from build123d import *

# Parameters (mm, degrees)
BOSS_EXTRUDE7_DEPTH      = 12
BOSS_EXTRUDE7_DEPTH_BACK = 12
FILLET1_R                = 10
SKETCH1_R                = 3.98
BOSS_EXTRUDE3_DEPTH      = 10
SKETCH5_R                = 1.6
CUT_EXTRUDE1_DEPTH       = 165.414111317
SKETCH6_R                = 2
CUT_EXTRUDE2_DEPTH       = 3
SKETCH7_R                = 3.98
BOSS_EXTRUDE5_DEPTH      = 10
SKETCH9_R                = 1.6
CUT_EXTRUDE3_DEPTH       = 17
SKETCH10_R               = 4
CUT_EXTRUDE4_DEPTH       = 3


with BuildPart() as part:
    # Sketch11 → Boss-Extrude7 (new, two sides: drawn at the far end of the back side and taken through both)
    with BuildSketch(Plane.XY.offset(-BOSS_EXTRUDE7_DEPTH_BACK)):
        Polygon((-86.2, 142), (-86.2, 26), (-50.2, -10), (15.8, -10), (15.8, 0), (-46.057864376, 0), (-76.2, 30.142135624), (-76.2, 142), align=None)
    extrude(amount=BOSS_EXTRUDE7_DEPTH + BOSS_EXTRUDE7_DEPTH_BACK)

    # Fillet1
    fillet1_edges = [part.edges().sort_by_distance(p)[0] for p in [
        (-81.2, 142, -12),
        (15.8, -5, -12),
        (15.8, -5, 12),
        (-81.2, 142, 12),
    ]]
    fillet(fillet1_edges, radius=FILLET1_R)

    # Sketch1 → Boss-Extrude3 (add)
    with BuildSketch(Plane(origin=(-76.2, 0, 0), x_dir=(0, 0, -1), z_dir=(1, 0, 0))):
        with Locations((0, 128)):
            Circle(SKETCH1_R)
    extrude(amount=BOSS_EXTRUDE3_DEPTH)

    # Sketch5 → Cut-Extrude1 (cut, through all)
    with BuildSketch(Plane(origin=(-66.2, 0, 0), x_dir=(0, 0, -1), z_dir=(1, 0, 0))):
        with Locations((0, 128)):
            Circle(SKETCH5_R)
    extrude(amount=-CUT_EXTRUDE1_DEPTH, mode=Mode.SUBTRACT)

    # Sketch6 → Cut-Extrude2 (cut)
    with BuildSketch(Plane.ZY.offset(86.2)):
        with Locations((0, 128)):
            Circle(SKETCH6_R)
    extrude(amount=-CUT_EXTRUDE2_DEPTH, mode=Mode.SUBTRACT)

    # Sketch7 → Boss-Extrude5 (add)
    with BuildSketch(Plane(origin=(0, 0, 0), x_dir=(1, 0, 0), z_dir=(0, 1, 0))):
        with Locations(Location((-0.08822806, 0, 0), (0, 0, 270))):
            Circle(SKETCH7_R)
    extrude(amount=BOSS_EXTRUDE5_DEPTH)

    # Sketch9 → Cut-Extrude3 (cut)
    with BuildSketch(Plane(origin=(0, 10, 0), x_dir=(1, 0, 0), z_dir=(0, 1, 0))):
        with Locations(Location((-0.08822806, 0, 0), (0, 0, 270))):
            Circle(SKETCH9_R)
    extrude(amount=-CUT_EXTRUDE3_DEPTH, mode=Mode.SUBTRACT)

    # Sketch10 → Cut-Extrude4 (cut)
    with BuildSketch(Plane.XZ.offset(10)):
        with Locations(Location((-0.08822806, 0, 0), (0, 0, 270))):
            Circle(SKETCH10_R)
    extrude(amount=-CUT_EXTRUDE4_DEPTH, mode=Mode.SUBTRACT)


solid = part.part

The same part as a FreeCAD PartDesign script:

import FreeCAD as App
import Part
import Sketcher
Q = App.Units.Quantity


def edges_at(feature, points):
    """Names of the edges that pass closest to the given points."""
    edges = feature.Shape.Edges
    near = lambda p: min(range(len(edges)), key=lambda i: edges[i].distToShape(Part.Vertex(*p))[0])
    return sorted({f"Edge{near(p) + 1}" for p in points})


def add_polygon(sketch, points):
    """Adds a closed chain of lines whose ends are joined by coincident constraints."""
    first, n = sketch.GeometryCount, len(points)
    for a, b in zip(points, points[1:] + points[:1]):
        sketch.addGeometry(Part.LineSegment(App.Vector(*a, 0), App.Vector(*b, 0)), False)
    for i in range(n):
        sketch.addConstraint(Sketcher.Constraint("Coincident", first + i, 2, first + (i + 1) % n, 1))

doc = App.newDocument("Part")
params = doc.addObject("Spreadsheet::Sheet", "Params")
for row, (alias, value) in enumerate([
    ("sketch1_width", "66 mm"),
    ("sketch1_width2", "10 mm"),
    ("sketch1_height", "116 mm"),
    ("pad1_length", "12 mm"),
    ("pad1_length2", "12 mm"),
    ("fillet_radius", "10 mm"),
    ("sketch2_diameter", "7.96 mm"),
    ("pad2_length", "10 mm"),
    ("sketch3_diameter", "3.2 mm"),
    ("sketch4_diameter", "4 mm"),
    ("pocket2_length", "3 mm"),
    ("sketch5_diameter", "7.96 mm"),
    ("pad3_length", "10 mm"),
    ("sketch6_diameter", "3.2 mm"),
    ("pocket3_length", "17 mm"),
    ("sketch7_diameter", "8 mm"),
    ("pocket4_length", "3 mm"),
], start=1):
    params.set(f"A{row}", alias)
    params.set(f"B{row}", "=" + value)
    params.setAlias(f"B{row}", alias)

body = doc.addObject("PartDesign::Body", "Body")

# Sketch on XY plane
sketch1 = doc.addObject("Sketcher::SketchObject", "Sketch")
body.addObject(sketch1)
sketch1.AttachmentSupport = (doc.XY_Plane, [""])
sketch1.MapMode = "FlatFace"
add_polygon(sketch1, [(-86, 142), (-86, 26), (-50, -10), (16, -10), (16, 0), (-46, 0), (-76, 30), (-76, 142)])  # lines 0-7
sketch1.addConstraint(Sketcher.Constraint("Vertical", 0))
sketch1.addConstraint(Sketcher.Constraint("Horizontal", 2))
sketch1.addConstraint(Sketcher.Constraint("Vertical", 3))
sketch1.addConstraint(Sketcher.Constraint("Horizontal", 4))
sketch1.addConstraint(Sketcher.Constraint("Vertical", 6))
sketch1.addConstraint(Sketcher.Constraint("Horizontal", 7))
sketch1.addConstraint(Sketcher.Constraint("PointOnObject", 3, 2, -1))
sketch1.addConstraint(Sketcher.Constraint("Parallel", 1, 5))
sketch1.addConstraint(Sketcher.Constraint("Equal", 7, 3))
sketch1.addConstraint(Sketcher.Constraint("DistanceX", 2, 1, 2, 2, Q("66 mm")))
sketch1.addConstraint(Sketcher.Constraint("DistanceX", 7, 2, 7, 1, Q("10 mm")))
sketch1.addConstraint(Sketcher.Constraint("DistanceY", 0, 2, 0, 1, Q("116 mm")))
sketch1.addConstraint(Sketcher.Constraint("Angle", 1, Q("-45 deg")))
sketch1.addConstraint(Sketcher.Constraint("DistanceY", -1, 1, 0, 2, Q("26 mm")))
sketch1.addConstraint(Sketcher.Constraint("DistanceX", 0, 2, -1, 1, Q("86.2 mm")))
sketch1.addConstraint(Sketcher.Constraint("DistanceX", 4, 2, 4, 1, Q("61.857864 mm")))
sketch1.setExpression("Constraints[17]", "Params.sketch1_width")
sketch1.setExpression("Constraints[18]", "Params.sketch1_width2")
sketch1.setExpression("Constraints[19]", "Params.sketch1_height")
pad1 = doc.addObject("PartDesign::Pad", "Pad")
body.addObject(pad1)
pad1.Profile = sketch1
pad1.Type = "TwoLengths"
pad1.setExpression("Length", "Params.pad1_length")
pad1.setExpression("Length2", "Params.pad1_length2")
doc.recompute()

fillet = doc.addObject("PartDesign::Fillet", "Fillet")
body.addObject(fillet)
fillet.Base = (pad1, edges_at(pad1, [
    (-81.2, 142, -12),
    (15.8, -5, -12),
    (15.8, -5, 12),
    (-81.2, 142, 12),
]))
fillet.setExpression("Radius", "Params.fillet_radius")

# Sketch on YZ plane
sketch2 = doc.addObject("Sketcher::SketchObject", "Sketch001")
body.addObject(sketch2)
sketch2.AttachmentSupport = (doc.YZ_Plane, [""])
sketch2.MapMode = "FlatFace"
sketch2.AttachmentOffset = App.Placement(App.Vector(0, 0, -76.2), App.Rotation())
sketch2.addGeometry(Part.Circle(App.Vector(128, 0, 0), App.Vector(0, 0, 1), 4), False)
sketch2.addConstraint(Sketcher.Constraint("PointOnObject", 0, 3, -1))
sketch2.addConstraint(Sketcher.Constraint("Diameter", 0, Q("7.96 mm")))
sketch2.addConstraint(Sketcher.Constraint("DistanceX", -1, 1, 0, 3, Q("128 mm")))
sketch2.setExpression("Constraints[1]", "Params.sketch2_diameter")
pad2 = doc.addObject("PartDesign::Pad", "Pad001")
body.addObject(pad2)
pad2.Profile = sketch2
pad2.setExpression("Length", "Params.pad2_length")

# Sketch on YZ plane
sketch3 = doc.addObject("Sketcher::SketchObject", "Sketch002")
body.addObject(sketch3)
sketch3.AttachmentSupport = (doc.YZ_Plane, [""])
sketch3.MapMode = "FlatFace"
sketch3.AttachmentOffset = App.Placement(App.Vector(0, 0, -66.2), App.Rotation())
sketch3.addGeometry(Part.Circle(App.Vector(128, 0, 0), App.Vector(0, 0, 1), 1.6), False)
sketch3.addConstraint(Sketcher.Constraint("PointOnObject", 0, 3, -1))
sketch3.addConstraint(Sketcher.Constraint("Diameter", 0, Q("3.2 mm")))
sketch3.addConstraint(Sketcher.Constraint("DistanceX", -1, 1, 0, 3, Q("128 mm")))
sketch3.setExpression("Constraints[1]", "Params.sketch3_diameter")
pocket1 = doc.addObject("PartDesign::Pocket", "Pocket")
body.addObject(pocket1)
pocket1.Profile = sketch3
pocket1.Type = "ThroughAll"

# Sketch on YZ plane
sketch4 = doc.addObject("Sketcher::SketchObject", "Sketch003")
body.addObject(sketch4)
sketch4.AttachmentSupport = (doc.YZ_Plane, [""])
sketch4.MapMode = "FlatFace"
sketch4.AttachmentOffset = App.Placement(App.Vector(0, 0, -86.2), App.Rotation())
sketch4.addGeometry(Part.Circle(App.Vector(128, 0, 0), App.Vector(0, 0, 1), 2), False)
sketch4.addConstraint(Sketcher.Constraint("PointOnObject", 0, 3, -1))
sketch4.addConstraint(Sketcher.Constraint("Diameter", 0, Q("4 mm")))
sketch4.addConstraint(Sketcher.Constraint("DistanceX", -1, 1, 0, 3, Q("128 mm")))
sketch4.setExpression("Constraints[1]", "Params.sketch4_diameter")
pocket2 = doc.addObject("PartDesign::Pocket", "Pocket001")
body.addObject(pocket2)
pocket2.Profile = sketch4
pocket2.setExpression("Length", "Params.pocket2_length")
pocket2.Reversed = True

# Sketch on XZ plane
sketch5 = doc.addObject("Sketcher::SketchObject", "Sketch004")
body.addObject(sketch5)
sketch5.AttachmentSupport = (doc.XZ_Plane, [""])
sketch5.MapMode = "FlatFace"
sketch5.addGeometry(Part.Circle(App.Vector(-0.1, 0, 0), App.Vector(0, 0, 1), 4), False)
sketch5.addConstraint(Sketcher.Constraint("PointOnObject", 0, 3, -1))
sketch5.addConstraint(Sketcher.Constraint("Diameter", 0, Q("7.96 mm")))
sketch5.addConstraint(Sketcher.Constraint("DistanceX", 0, 3, -1, 1, Q("0.088228 mm")))
sketch5.setExpression("Constraints[1]", "Params.sketch5_diameter")
pad3 = doc.addObject("PartDesign::Pad", "Pad002")
body.addObject(pad3)
pad3.Profile = sketch5
pad3.setExpression("Length", "Params.pad3_length")
pad3.Reversed = True

# Sketch on XZ plane
sketch6 = doc.addObject("Sketcher::SketchObject", "Sketch005")
body.addObject(sketch6)
sketch6.AttachmentSupport = (doc.XZ_Plane, [""])
sketch6.MapMode = "FlatFace"
sketch6.AttachmentOffset = App.Placement(App.Vector(0, 0, -10), App.Rotation())
sketch6.addGeometry(Part.Circle(App.Vector(-0.1, 0, 0), App.Vector(0, 0, 1), 1.6), False)
sketch6.addConstraint(Sketcher.Constraint("PointOnObject", 0, 3, -1))
sketch6.addConstraint(Sketcher.Constraint("Diameter", 0, Q("3.2 mm")))
sketch6.addConstraint(Sketcher.Constraint("DistanceX", 0, 3, -1, 1, Q("0.088228 mm")))
sketch6.setExpression("Constraints[1]", "Params.sketch6_diameter")
pocket3 = doc.addObject("PartDesign::Pocket", "Pocket002")
body.addObject(pocket3)
pocket3.Profile = sketch6
pocket3.setExpression("Length", "Params.pocket3_length")
pocket3.Reversed = True

# Sketch on XZ plane
sketch7 = doc.addObject("Sketcher::SketchObject", "Sketch006")
body.addObject(sketch7)
sketch7.AttachmentSupport = (doc.XZ_Plane, [""])
sketch7.MapMode = "FlatFace"
sketch7.AttachmentOffset = App.Placement(App.Vector(0, 0, 10), App.Rotation())
sketch7.addGeometry(Part.Circle(App.Vector(-0.1, 0, 0), App.Vector(0, 0, 1), 4), False)
sketch7.addConstraint(Sketcher.Constraint("PointOnObject", 0, 3, -1))
sketch7.addConstraint(Sketcher.Constraint("Diameter", 0, Q("8 mm")))
sketch7.addConstraint(Sketcher.Constraint("DistanceX", 0, 3, -1, 1, Q("0.088228 mm")))
sketch7.setExpression("Constraints[1]", "Params.sketch7_diameter")
pocket4 = doc.addObject("PartDesign::Pocket", "Pocket003")
body.addObject(pocket4)
pocket4.Profile = sketch7
pocket4.setExpression("Length", "Params.pocket4_length")

doc.recompute()
